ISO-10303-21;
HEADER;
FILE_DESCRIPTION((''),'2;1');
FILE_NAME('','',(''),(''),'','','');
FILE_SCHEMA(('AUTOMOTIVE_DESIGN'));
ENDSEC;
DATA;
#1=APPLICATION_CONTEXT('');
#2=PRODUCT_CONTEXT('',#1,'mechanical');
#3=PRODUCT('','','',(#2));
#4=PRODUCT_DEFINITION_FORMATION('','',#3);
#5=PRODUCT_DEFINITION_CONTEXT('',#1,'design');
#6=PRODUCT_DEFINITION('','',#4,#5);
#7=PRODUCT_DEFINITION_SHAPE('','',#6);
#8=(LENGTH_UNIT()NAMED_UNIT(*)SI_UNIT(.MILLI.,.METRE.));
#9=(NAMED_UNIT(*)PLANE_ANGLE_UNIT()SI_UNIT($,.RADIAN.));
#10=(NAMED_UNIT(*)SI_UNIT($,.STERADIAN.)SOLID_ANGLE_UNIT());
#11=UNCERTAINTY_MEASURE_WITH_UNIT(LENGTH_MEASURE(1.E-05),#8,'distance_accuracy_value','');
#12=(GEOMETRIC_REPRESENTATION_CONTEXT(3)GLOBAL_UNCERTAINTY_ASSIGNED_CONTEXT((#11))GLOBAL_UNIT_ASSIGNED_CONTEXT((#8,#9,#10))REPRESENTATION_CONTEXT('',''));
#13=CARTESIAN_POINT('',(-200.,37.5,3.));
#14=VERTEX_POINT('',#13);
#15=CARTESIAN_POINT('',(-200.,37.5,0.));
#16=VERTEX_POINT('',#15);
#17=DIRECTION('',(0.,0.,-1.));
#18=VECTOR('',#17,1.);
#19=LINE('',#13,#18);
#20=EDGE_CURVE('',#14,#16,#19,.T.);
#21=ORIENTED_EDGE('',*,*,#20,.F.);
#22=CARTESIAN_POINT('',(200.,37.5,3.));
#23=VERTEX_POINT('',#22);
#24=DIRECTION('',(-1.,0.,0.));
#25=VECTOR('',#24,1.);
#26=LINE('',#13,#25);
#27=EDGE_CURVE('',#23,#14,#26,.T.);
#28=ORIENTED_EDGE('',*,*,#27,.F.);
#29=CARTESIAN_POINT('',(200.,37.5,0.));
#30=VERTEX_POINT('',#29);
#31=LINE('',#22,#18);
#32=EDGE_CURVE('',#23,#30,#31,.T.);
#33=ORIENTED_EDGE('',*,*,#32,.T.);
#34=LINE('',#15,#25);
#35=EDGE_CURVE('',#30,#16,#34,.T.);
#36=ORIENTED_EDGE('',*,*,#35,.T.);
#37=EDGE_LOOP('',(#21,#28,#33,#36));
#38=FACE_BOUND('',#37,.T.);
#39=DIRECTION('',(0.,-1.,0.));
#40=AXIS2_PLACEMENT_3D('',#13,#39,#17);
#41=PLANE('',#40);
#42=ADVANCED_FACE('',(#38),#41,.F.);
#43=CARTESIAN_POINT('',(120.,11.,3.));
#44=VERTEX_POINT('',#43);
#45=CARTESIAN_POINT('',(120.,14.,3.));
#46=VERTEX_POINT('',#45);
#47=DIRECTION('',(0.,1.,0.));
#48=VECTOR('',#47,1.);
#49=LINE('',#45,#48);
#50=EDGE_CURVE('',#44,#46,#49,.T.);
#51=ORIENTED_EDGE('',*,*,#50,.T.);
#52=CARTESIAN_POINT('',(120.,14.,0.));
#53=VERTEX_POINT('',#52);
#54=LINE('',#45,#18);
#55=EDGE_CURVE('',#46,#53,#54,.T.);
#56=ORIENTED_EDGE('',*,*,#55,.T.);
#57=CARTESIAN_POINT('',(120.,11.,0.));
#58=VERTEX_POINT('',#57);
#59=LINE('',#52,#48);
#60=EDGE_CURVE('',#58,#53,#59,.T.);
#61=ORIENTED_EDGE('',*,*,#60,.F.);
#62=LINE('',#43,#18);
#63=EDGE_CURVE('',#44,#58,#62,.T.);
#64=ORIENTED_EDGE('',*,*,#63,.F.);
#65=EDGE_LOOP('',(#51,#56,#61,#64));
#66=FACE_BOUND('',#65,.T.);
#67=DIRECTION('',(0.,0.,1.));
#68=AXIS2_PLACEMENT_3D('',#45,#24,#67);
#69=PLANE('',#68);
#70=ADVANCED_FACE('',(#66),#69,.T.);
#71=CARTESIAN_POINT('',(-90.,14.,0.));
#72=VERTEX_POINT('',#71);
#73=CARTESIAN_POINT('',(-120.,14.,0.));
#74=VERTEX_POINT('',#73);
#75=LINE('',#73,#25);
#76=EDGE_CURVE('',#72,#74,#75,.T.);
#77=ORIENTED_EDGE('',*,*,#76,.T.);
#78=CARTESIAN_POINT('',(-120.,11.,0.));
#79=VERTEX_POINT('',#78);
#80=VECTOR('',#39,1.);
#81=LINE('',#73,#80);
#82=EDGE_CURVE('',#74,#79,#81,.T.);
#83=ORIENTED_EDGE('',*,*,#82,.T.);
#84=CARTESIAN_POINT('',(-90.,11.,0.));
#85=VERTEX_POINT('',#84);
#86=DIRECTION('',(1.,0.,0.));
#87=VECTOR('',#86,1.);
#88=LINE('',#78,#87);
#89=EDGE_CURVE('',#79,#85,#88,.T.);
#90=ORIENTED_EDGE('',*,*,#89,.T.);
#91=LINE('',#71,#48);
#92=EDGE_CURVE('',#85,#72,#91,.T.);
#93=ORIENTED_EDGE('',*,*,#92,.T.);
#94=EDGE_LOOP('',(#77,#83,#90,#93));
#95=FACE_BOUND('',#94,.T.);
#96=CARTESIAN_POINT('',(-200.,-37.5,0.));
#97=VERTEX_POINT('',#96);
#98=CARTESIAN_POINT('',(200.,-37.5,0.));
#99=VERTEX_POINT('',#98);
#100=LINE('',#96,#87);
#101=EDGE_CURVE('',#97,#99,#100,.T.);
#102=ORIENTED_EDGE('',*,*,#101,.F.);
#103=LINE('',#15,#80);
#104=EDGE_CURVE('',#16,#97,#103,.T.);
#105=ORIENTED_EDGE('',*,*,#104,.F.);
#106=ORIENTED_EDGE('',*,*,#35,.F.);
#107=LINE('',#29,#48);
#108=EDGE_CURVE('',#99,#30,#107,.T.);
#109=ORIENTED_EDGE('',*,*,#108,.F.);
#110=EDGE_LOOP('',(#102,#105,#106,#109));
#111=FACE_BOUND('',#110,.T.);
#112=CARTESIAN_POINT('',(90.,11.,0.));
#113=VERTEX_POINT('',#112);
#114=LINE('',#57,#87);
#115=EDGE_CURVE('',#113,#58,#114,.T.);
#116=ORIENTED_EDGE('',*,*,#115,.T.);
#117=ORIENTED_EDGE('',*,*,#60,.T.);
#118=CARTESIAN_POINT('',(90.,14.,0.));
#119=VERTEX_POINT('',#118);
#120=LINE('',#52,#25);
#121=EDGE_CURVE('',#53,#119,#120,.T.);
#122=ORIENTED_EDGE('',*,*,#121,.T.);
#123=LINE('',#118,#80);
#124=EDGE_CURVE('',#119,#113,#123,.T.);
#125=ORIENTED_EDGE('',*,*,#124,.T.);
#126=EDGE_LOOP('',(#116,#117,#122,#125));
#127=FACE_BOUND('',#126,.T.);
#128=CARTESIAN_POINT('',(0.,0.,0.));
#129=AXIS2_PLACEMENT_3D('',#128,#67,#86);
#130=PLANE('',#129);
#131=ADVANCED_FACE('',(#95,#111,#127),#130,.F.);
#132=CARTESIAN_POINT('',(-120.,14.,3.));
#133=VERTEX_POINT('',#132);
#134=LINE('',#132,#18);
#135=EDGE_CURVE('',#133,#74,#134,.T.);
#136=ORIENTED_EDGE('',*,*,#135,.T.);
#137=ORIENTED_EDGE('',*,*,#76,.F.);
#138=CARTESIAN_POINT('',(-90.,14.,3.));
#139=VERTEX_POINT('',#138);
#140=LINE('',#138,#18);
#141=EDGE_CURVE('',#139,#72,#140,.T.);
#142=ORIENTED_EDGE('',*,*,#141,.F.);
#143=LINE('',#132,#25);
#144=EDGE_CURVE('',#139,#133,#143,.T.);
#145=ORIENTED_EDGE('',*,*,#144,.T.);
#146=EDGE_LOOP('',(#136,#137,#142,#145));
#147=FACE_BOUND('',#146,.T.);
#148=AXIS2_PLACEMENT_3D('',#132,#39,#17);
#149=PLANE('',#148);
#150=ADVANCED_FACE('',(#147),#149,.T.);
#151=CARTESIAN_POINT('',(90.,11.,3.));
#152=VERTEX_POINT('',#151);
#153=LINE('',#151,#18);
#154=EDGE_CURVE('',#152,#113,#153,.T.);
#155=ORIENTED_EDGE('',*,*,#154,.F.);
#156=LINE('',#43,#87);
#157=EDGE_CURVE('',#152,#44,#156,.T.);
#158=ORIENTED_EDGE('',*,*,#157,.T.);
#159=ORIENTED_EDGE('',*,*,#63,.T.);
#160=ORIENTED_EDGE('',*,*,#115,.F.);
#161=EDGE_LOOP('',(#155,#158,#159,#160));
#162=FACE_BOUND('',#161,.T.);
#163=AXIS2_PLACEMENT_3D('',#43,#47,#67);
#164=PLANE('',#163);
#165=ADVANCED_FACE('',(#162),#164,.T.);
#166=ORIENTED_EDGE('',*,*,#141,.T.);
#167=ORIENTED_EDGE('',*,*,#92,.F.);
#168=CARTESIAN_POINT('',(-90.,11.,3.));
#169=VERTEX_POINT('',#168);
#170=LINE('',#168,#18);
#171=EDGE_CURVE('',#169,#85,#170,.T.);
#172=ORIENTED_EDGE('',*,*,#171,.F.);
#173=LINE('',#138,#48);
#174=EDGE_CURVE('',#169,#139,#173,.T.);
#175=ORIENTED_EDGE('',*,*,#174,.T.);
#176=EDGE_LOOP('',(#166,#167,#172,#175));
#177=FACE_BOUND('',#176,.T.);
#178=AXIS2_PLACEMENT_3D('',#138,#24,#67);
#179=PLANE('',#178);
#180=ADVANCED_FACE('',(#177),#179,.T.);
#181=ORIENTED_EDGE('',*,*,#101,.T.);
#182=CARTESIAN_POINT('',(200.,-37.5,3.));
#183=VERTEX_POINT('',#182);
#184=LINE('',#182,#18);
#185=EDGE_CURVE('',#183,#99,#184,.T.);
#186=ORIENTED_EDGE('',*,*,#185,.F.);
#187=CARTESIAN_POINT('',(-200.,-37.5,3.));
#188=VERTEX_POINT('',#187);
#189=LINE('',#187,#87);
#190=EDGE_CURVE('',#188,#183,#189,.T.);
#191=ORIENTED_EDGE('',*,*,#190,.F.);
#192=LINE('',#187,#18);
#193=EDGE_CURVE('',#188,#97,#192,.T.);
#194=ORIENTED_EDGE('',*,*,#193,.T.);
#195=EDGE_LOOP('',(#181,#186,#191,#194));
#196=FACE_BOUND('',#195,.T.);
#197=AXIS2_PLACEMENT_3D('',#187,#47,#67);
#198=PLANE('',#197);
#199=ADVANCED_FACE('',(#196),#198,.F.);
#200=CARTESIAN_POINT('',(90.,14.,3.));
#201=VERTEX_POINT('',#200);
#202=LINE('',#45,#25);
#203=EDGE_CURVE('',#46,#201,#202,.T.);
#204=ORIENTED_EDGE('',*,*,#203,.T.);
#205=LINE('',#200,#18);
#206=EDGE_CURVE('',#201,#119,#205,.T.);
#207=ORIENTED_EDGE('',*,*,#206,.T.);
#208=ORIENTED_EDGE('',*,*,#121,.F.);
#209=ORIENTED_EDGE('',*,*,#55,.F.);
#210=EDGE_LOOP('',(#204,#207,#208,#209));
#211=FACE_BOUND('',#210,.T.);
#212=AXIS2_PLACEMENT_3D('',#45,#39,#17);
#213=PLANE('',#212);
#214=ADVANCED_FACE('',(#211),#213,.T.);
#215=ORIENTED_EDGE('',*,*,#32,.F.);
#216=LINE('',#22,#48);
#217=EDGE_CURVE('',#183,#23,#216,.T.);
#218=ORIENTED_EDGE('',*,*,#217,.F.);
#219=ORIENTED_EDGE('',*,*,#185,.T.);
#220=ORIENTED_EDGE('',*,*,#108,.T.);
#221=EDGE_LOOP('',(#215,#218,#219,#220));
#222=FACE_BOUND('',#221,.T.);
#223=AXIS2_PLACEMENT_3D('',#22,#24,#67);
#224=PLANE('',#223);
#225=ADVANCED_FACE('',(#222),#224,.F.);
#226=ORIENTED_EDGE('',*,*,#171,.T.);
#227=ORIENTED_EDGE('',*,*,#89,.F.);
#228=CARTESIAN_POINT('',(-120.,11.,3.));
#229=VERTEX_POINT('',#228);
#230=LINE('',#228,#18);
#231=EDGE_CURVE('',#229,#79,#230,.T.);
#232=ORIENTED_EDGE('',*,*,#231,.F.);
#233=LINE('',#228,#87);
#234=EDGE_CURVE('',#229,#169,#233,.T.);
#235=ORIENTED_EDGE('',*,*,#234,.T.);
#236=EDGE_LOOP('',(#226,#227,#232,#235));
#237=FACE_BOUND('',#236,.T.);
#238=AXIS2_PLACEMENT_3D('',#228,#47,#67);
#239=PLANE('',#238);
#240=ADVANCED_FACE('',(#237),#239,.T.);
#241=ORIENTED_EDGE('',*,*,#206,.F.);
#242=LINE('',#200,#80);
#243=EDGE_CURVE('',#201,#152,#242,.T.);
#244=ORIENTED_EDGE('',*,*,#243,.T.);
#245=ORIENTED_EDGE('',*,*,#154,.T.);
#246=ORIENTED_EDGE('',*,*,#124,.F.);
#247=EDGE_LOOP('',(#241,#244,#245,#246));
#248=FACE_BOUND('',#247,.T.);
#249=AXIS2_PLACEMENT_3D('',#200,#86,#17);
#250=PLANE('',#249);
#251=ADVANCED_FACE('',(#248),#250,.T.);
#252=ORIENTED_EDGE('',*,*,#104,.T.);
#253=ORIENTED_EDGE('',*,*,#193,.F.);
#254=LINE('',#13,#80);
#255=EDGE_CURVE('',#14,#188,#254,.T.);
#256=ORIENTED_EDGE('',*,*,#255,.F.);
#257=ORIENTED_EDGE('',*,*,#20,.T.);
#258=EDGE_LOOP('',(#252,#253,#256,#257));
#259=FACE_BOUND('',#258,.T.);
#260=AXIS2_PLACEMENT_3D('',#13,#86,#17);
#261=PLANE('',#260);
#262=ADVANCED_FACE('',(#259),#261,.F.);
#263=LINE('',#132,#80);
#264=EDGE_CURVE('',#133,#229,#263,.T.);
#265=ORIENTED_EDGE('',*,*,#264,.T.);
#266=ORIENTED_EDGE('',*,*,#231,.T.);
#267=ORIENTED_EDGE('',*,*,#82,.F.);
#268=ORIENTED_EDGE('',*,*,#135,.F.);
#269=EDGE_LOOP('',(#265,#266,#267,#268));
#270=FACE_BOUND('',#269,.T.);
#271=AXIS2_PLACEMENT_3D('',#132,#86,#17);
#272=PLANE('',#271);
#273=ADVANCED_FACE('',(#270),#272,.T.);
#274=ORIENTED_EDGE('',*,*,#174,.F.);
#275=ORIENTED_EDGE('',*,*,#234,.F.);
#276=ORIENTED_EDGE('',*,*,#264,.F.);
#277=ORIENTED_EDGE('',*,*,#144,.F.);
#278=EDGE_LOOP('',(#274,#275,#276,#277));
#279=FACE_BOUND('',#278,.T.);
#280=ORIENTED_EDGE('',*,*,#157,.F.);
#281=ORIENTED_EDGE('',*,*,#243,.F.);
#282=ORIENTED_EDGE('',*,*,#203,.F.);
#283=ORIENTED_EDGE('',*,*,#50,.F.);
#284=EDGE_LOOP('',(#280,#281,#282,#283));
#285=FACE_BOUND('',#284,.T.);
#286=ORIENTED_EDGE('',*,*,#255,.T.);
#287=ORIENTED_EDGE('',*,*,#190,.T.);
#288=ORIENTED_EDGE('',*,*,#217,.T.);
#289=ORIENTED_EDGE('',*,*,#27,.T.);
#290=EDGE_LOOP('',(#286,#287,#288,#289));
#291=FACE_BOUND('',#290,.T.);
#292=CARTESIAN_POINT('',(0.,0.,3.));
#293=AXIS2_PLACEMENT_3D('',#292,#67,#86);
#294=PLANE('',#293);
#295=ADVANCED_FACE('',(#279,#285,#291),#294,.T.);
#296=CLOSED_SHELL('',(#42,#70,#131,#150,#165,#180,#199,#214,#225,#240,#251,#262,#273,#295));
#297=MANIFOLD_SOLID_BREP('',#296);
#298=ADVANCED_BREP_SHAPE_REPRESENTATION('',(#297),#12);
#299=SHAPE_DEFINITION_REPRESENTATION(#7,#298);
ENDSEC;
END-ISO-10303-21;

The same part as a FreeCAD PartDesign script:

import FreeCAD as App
import Part
import Sketcher
from FreeCAD import Vector

doc = App.newDocument("Part")
params = doc.addObject("Spreadsheet::Sheet", "Params")
for row, (alias, value) in enumerate([
    ("sketch1_width", "400 mm"),
    ("sketch1_width2", "30 mm"),
    ("sketch1_height", "75 mm"),
    ("sketch1_height2", "3 mm"),
    ("pad1_length", "3 mm"),
], start=1):
    params.set(f"A{row}", alias)
    params.set(f"B{row}", "=" + value)
    params.setAlias(f"B{row}", alias)

body = doc.addObject("PartDesign::Body", "Body")

sketch1 = body.newObject("Sketcher::SketchObject", "Sketch")
sketch1.AttachmentSupport = (doc.getObject("XY_Plane"), [""])
sketch1.MapMode = "FlatFace"
sketch1.addGeometry(Part.LineSegment(Vector(-200, 37.5, 0), Vector(-200, -37.5, 0)), False)
sketch1.addGeometry(Part.LineSegment(Vector(-200, -37.5, 0), Vector(200, -37.5, 0)), False)
sketch1.addGeometry(Part.LineSegment(Vector(200, -37.5, 0), Vector(200, 37.5, 0)), False)
sketch1.addGeometry(Part.LineSegment(Vector(200, 37.5, 0), Vector(-200, 37.5, 0)), False)
sketch1.addGeometry(Part.LineSegment(Vector(-90, 11, 0), Vector(-120, 11, 0)), False)
sketch1.addGeometry(Part.LineSegment(Vector(-120, 11, 0), Vector(-120, 14, 0)), False)
sketch1.addGeometry(Part.LineSegment(Vector(-120, 14, 0), Vector(-90, 14, 0)), False)
sketch1.addGeometry(Part.LineSegment(Vector(-90, 14, 0), Vector(-90, 11, 0)), False)
sketch1.addGeometry(Part.LineSegment(Vector(120, 11, 0), Vector(90, 11, 0)), False)
sketch1.addGeometry(Part.LineSegment(Vector(90, 11, 0), Vector(90, 14, 0)), False)
sketch1.addGeometry(Part.LineSegment(Vector(90, 14, 0), Vector(120, 14, 0)), False)
sketch1.addGeometry(Part.LineSegment(Vector(120, 14, 0), Vector(120, 11, 0)), False)
sketch1.addConstraint(Sketcher.Constraint("Coincident", 0, 2, 1, 1))
sketch1.addConstraint(Sketcher.Constraint("Coincident", 1, 2, 2, 1))
sketch1.addConstraint(Sketcher.Constraint("Coincident", 2, 2, 3, 1))
sketch1.addConstraint(Sketcher.Constraint("Coincident", 3, 2, 0, 1))
sketch1.addConstraint(Sketcher.Constraint("Coincident", 4, 2, 5, 1))
sketch1.addConstraint(Sketcher.Constraint("Coincident", 5, 2, 6, 1))
sketch1.addConstraint(Sketcher.Constraint("Coincident", 6, 2, 7, 1))
sketch1.addConstraint(Sketcher.Constraint("Coincident", 7, 2, 4, 1))
sketch1.addConstraint(Sketcher.Constraint("Coincident", 8, 2, 9, 1))
sketch1.addConstraint(Sketcher.Constraint("Coincident", 9, 2, 10, 1))
sketch1.addConstraint(Sketcher.Constraint("Coincident", 10, 2, 11, 1))
sketch1.addConstraint(Sketcher.Constraint("Coincident", 11, 2, 8, 1))
sketch1.addConstraint(Sketcher.Constraint("Vertical", 0))
sketch1.addConstraint(Sketcher.Constraint("Horizontal", 1))
sketch1.addConstraint(Sketcher.Constraint("Vertical", 2))
sketch1.addConstraint(Sketcher.Constraint("Horizontal", 3))
sketch1.addConstraint(Sketcher.Constraint("Horizontal", 4))
sketch1.addConstraint(Sketcher.Constraint("Vertical", 5))
sketch1.addConstraint(Sketcher.Constraint("Horizontal", 6))
sketch1.addConstraint(Sketcher.Constraint("Vertical", 7))
sketch1.addConstraint(Sketcher.Constraint("Horizontal", 8))
sketch1.addConstraint(Sketcher.Constraint("Vertical", 9))
sketch1.addConstraint(Sketcher.Constraint("Horizontal", 10))
sketch1.addConstraint(Sketcher.Constraint("Vertical", 11))
sketch1.addConstraint(Sketcher.Constraint("Symmetric", 0, 2, 2, 2, -1, 1))
sketch1.addConstraint(Sketcher.Constraint("Symmetric", 7, 2, 8, 2, -2))
sketch1.addConstraint(Sketcher.Constraint("Symmetric", 5, 2, 10, 2, -2))
sketch1.addConstraint(Sketcher.Constraint("DistanceX", 1, 1, 1, 2, 400.0))
sketch1.addConstraint(Sketcher.Constraint("DistanceX", 4, 2, 4, 1, 30.0))
sketch1.addConstraint(Sketcher.Constraint("DistanceY", 0, 2, 0, 1, 75.0))
sketch1.addConstraint(Sketcher.Constraint("DistanceY", 5, 1, 5, 2, 3.0))
sketch1.addConstraint(Sketcher.Constraint("DistanceX", 4, 2, -1, 1, 120.0))
sketch1.addConstraint(Sketcher.Constraint("DistanceY", -1, 1, 4, 2, 11.0))
sketch1.setExpression("Constraints[27]", "Params.sketch1_width")
sketch1.setExpression("Constraints[28]", "Params.sketch1_width2")
sketch1.setExpression("Constraints[29]", "Params.sketch1_height")
sketch1.setExpression("Constraints[30]", "Params.sketch1_height2")
pad1 = body.newObject("PartDesign::Pad", "Pad")
pad1.Profile = sketch1
pad1.setExpression("Length", "Params.pad1_length")

doc.recompute()
